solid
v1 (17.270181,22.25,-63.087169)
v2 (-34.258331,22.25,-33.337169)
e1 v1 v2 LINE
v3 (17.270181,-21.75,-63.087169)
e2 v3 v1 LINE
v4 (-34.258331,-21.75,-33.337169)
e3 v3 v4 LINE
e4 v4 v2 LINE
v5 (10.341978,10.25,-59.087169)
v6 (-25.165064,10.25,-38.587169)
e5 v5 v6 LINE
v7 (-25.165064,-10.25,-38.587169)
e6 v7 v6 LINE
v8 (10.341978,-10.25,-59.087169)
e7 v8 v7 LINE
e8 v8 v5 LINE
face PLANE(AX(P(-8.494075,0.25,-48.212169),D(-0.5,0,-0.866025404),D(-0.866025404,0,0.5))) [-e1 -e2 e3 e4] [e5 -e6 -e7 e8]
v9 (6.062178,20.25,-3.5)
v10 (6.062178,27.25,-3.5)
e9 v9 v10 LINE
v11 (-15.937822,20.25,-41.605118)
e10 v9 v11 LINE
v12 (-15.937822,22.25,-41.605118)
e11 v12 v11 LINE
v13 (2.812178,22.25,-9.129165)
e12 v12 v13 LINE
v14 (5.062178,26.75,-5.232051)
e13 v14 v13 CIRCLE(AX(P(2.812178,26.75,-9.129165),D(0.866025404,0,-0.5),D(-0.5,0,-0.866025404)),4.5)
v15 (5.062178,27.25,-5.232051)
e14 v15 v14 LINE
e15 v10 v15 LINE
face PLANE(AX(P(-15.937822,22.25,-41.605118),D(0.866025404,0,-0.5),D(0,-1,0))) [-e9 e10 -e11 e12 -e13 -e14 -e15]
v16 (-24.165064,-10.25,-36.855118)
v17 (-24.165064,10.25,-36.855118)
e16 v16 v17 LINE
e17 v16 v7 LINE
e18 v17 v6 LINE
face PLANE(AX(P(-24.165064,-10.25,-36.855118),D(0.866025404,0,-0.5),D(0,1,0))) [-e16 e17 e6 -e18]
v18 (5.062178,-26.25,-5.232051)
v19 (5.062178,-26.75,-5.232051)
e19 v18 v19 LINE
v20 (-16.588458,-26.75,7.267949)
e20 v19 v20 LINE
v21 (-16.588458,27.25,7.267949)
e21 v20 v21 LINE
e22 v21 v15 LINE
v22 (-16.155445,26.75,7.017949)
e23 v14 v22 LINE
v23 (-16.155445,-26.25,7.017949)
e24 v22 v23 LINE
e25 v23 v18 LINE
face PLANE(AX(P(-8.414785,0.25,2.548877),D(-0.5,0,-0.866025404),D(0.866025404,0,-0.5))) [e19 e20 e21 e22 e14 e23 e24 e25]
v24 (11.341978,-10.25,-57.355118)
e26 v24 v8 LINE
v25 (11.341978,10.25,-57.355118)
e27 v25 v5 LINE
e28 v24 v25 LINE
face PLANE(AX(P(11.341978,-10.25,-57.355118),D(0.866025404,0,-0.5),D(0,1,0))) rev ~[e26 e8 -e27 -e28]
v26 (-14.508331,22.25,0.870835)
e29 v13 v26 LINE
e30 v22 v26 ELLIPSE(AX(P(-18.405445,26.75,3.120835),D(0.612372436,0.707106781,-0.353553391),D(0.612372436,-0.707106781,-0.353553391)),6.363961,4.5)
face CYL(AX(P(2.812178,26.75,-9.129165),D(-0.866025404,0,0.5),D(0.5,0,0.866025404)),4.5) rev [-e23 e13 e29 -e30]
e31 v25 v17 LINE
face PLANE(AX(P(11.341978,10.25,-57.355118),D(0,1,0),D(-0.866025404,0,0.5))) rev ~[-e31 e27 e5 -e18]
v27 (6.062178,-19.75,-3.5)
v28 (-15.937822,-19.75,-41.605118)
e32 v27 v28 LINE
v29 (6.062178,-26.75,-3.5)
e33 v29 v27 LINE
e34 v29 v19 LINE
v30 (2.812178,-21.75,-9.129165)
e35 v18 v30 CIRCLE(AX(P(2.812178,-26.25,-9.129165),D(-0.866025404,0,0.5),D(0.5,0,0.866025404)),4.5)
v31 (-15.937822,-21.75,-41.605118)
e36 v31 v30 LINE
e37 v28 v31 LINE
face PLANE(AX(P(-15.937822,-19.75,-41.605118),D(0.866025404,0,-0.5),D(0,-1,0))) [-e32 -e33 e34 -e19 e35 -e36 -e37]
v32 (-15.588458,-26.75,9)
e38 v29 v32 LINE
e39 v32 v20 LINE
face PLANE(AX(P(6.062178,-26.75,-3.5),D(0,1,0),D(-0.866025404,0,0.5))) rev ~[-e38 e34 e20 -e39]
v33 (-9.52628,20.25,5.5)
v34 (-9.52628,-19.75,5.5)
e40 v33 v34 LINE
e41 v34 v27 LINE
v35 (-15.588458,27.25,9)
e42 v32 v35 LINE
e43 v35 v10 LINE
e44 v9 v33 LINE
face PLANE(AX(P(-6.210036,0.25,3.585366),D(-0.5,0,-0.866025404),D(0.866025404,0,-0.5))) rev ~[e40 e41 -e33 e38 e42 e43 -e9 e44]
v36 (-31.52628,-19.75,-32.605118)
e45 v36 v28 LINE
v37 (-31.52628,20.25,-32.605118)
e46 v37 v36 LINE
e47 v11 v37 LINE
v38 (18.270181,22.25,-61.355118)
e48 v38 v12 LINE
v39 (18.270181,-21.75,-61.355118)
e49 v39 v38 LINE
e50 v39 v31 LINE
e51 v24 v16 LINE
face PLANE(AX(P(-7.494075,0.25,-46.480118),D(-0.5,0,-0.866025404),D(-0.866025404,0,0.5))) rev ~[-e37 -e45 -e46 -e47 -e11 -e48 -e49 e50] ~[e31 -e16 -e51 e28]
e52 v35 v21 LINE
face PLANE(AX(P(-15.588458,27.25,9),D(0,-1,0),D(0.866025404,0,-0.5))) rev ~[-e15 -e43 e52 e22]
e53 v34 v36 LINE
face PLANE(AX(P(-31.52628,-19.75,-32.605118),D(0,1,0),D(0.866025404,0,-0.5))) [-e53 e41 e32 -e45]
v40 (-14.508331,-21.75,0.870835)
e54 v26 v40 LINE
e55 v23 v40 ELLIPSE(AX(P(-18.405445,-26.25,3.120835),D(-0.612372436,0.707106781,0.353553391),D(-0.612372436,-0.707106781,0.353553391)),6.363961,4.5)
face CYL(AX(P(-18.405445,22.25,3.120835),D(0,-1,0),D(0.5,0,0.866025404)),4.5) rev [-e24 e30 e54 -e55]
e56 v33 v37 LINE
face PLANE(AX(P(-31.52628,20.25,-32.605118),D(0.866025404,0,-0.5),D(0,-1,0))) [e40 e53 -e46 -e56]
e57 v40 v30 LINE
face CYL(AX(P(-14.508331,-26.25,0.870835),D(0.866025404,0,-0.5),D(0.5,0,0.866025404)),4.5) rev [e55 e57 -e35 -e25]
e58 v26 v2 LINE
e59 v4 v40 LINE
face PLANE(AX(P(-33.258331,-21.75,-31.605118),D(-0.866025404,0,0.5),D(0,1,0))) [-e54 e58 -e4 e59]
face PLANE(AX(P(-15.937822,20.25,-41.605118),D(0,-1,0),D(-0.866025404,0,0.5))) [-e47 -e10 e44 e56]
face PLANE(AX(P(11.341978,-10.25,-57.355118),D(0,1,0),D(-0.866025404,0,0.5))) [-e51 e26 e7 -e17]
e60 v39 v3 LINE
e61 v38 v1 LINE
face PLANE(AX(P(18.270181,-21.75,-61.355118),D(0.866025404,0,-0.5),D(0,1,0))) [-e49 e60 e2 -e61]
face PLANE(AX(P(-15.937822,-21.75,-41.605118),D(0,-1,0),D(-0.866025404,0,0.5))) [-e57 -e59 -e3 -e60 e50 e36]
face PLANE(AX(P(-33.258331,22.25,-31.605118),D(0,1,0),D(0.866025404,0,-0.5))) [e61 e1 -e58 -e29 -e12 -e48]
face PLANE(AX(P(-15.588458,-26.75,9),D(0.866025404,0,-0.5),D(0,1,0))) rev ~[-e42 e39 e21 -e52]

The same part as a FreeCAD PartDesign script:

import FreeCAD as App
import Part
import Sketcher
from FreeCAD import Vector
Q = App.Units.Quantity


def edges_at(feature, points):
    """Names of the edges that pass closest to the given points."""
    edges = feature.Shape.Edges
    near = lambda p: min(range(len(edges)), key=lambda i: edges[i].distToShape(Part.Vertex(*p))[0])
    return sorted({f"Edge{near(p) + 1}" for p in points})

doc = App.newDocument("Part")
body = doc.addObject("PartDesign::Body", "Body")

# Sketch on XY plane
sketch1 = body.newObject("Sketcher::SketchObject", "Sketch")
sketch1.AttachmentSupport = (doc.getObject("XY_Plane"), [""])
sketch1.MapMode = "FlatFace"
sketch1.addGeometry([
    Part.LineSegment(Vector(-28.5, 22.25, 0), Vector(-28.5, -21.75, 0)),  # 0
    Part.LineSegment(Vector(-28.5, -21.75, 0), Vector(31, -21.75, 0)),  # 1
    Part.LineSegment(Vector(31, -21.75, 0), Vector(31, 22.25, 0)),  # 2
    Part.LineSegment(Vector(31, 22.25, 0), Vector(-28.5, 22.25, 0)),  # 3
    Part.LineSegment(Vector(20.5, -10.25, 0), Vector(-20.5, -10.25, 0)),  # 4
    Part.LineSegment(Vector(-20.5, -10.25, 0), Vector(-20.5, 10.25, 0)),  # 5
    Part.LineSegment(Vector(-20.5, 10.25, 0), Vector(20.5, 10.25, 0)),  # 6
    Part.LineSegment(Vector(20.5, 10.25, 0), Vector(20.5, -10.25, 0)),  # 7
], False)
sketch1.addConstraint([
    Sketcher.Constraint("Coincident", 0, 2, 1, 1),
    Sketcher.Constraint("Coincident", 1, 2, 2, 1),
    Sketcher.Constraint("Coincident", 2, 2, 3, 1),
    Sketcher.Constraint("Coincident", 3, 2, 0, 1),
    Sketcher.Constraint("Coincident", 4, 2, 5, 1),
    Sketcher.Constraint("Coincident", 5, 2, 6, 1),
    Sketcher.Constraint("Coincident", 6, 2, 7, 1),
    Sketcher.Constraint("Coincident", 7, 2, 4, 1),
    Sketcher.Constraint("Vertical", 0),
    Sketcher.Constraint("Horizontal", 1),
    Sketcher.Constraint("Vertical", 2),
    Sketcher.Constraint("Horizontal", 3),
    Sketcher.Constraint("Horizontal", 4),
    Sketcher.Constraint("Vertical", 5),
    Sketcher.Constraint("Horizontal", 6),
    Sketcher.Constraint("Vertical", 7),
    Sketcher.Constraint("Symmetric", 4, 2, 6, 2, -1, 1),
    Sketcher.Constraint("DistanceX", 4, 2, 4, 1, Q("41 mm")),
    Sketcher.Constraint("DistanceY", 0, 2, 0, 1, Q("44 mm")),
    Sketcher.Constraint("DistanceX", 1, 1, 1, 2, Q("59.5 mm")),
    Sketcher.Constraint("DistanceY", 5, 1, 5, 2, Q("20.5 mm")),
    Sketcher.Constraint("DistanceX", -1, 1, 1, 2, Q("31 mm")),
    Sketcher.Constraint("DistanceY", 5, 2, 3, 2, Q("12 mm")),
])
pad1 = body.newObject("PartDesign::Pad", "Pad")
pad1.Profile = sketch1
pad1.Length = 2

# Sketch on XY plane
sketch2 = body.newObject("Sketcher::SketchObject", "Sketch001")
sketch2.AttachmentSupport = (doc.getObject("XY_Plane"), [""])
sketch2.MapMode = "FlatFace"
sketch2.addGeometry([
    Part.LineSegment(Vector(31, 22.25, 0), Vector(31, -21.75, 0)),  # 0
    Part.LineSegment(Vector(31, -21.75, 0), Vector(11, -21.75, 0)),  # 1
    Part.LineSegment(Vector(11, -21.75, 0), Vector(11, -19.75, 0)),  # 2
    Part.LineSegment(Vector(11, -19.75, 0), Vector(29, -19.75, 0)),  # 3
    Part.LineSegment(Vector(29, -19.75, 0), Vector(29, 20.25, 0)),  # 4
    Part.LineSegment(Vector(29, 20.25, 0), Vector(11, 20.25, 0)),  # 5
    Part.LineSegment(Vector(11, 20.25, 0), Vector(11, 22.25, 0)),  # 6
    Part.LineSegment(Vector(11, 22.25, 0), Vector(31, 22.25, 0)),  # 7
], False)
sketch2.addConstraint([
    Sketcher.Constraint("Coincident", 0, 2, 1, 1),
    Sketcher.Constraint("Coincident", 1, 2, 2, 1),
    Sketcher.Constraint("Coincident", 2, 2, 3, 1),
    Sketcher.Constraint("Coincident", 3, 2, 4, 1),
    Sketcher.Constraint("Coincident", 4, 2, 5, 1),
    Sketcher.Constraint("Coincident", 5, 2, 6, 1),
    Sketcher.Constraint("Coincident", 6, 2, 7, 1),
    Sketcher.Constraint("Coincident", 7, 2, 0, 1),
    Sketcher.Constraint("Vertical", 0),
    Sketcher.Constraint("Horizontal", 1),
    Sketcher.Constraint("Vertical", 2),
    Sketcher.Constraint("Horizontal", 3),
    Sketcher.Constraint("Vertical", 4),
    Sketcher.Constraint("Horizontal", 5),
    Sketcher.Constraint("Vertical", 6),
    Sketcher.Constraint("Horizontal", 7),
    Sketcher.Constraint("Vertical", 2, 2, 5, 2),
    Sketcher.Constraint("Equal", 2, 6),
    Sketcher.Constraint("DistanceX", 1, 2, 1, 1, Q("20 mm")),
    Sketcher.Constraint("DistanceX", 3, 1, 3, 2, Q("18 mm")),
    Sketcher.Constraint("DistanceY", 0, 2, 0, 1, Q("44 mm")),
    Sketcher.Constraint("DistanceY", 2, 1, 2, 2, Q("2 mm")),
    Sketcher.Constraint("DistanceX", -1, 1, 0, 2, Q("31 mm")),
    Sketcher.Constraint("DistanceY", 0, 2, -1, 1, Q("21.75 mm")),
])
pad2 = body.newObject("PartDesign::Pad", "Pad001")
pad2.Profile = sketch2
pad2.Length = 44
pad2.Reversed = True

# Sketch on XY plane
sketch3 = body.newObject("Sketcher::SketchObject", "Sketch002")
sketch3.AttachmentSupport = (doc.getObject("XY_Plane"), [""])
sketch3.MapMode = "FlatFace"
sketch3.AttachmentOffset = App.Placement(Vector(0, 0, -44), App.Rotation())
sketch3.addGeometry([
    Part.LineSegment(Vector(11, -26.75, 0), Vector(11, -19.75, 0)),  # 0
    Part.LineSegment(Vector(11, -19.75, 0), Vector(29, -19.75, 0)),  # 1
    Part.LineSegment(Vector(29, -19.75, 0), Vector(29, 20.25, 0)),  # 2
    Part.LineSegment(Vector(29, 20.25, 0), Vector(11, 20.25, 0)),  # 3
    Part.LineSegment(Vector(11, 20.25, 0), Vector(11, 27.25, 0)),  # 4
    Part.LineSegment(Vector(11, 27.25, 0), Vector(36, 27.25, 0)),  # 5
    Part.LineSegment(Vector(36, 27.25, 0), Vector(36, -26.75, 0)),  # 6
    Part.LineSegment(Vector(36, -26.75, 0), Vector(11, -26.75, 0)),  # 7
], False)
sketch3.addConstraint([
    Sketcher.Constraint("Coincident", 0, 2, 1, 1),
    Sketcher.Constraint("Coincident", 1, 2, 2, 1),
    Sketcher.Constraint("Coincident", 2, 2, 3, 1),
    Sketcher.Constraint("Coincident", 3, 2, 4, 1),
    Sketcher.Constraint("Coincident", 4, 2, 5, 1),
    Sketcher.Constraint("Coincident", 5, 2, 6, 1),
    Sketcher.Constraint("Coincident", 6, 2, 7, 1),
    Sketcher.Constraint("Coincident", 7, 2, 0, 1),
    Sketcher.Constraint("Vertical", 0),
    Sketcher.Constraint("Horizontal", 1),
    Sketcher.Constraint("Vertical", 2),
    Sketcher.Constraint("Horizontal", 3),
    Sketcher.Constraint("Vertical", 4),
    Sketcher.Constraint("Horizontal", 5),
    Sketcher.Constraint("Vertical", 6),
    Sketcher.Constraint("Horizontal", 7),
    Sketcher.Constraint("Vertical", 0, 2, 3, 2),
    Sketcher.Constraint("Equal", 0, 4),
    Sketcher.Constraint("DistanceX", 1, 1, 1, 2, Q("18 mm")),
    Sketcher.Constraint("DistanceX", 5, 1, 5, 2, Q("25 mm")),
    Sketcher.Constraint("DistanceY", 0, 1, 0, 2, Q("7 mm")),
    Sketcher.Constraint("DistanceY", 2, 1, 2, 2, Q("40 mm")),
    Sketcher.Constraint("DistanceX", -1, 1, 0, 2, Q("11 mm")),
    Sketcher.Constraint("DistanceY", 0, 2, -1, 1, Q("19.75 mm")),
])
pad3 = body.newObject("PartDesign::Pad", "Pad002")
pad3.Profile = sketch3
pad3.Length = 2
doc.recompute()

fillet = body.newObject("PartDesign::Fillet", "Fillet")
fillet.Base = (pad3, edges_at(pad3, [(31, 0.25, -42), (21, 22.25, -42), (21, -21.75, -42)]))
fillet.Radius = 4.5
body2 = doc.addObject("PartDesign::Body", "Body001")
doc.recompute()

body.Placement = App.Placement(Vector(-6.411543, 0, -47.105118), App.Rotation(Vector(0, 1, 0), 210))
boolean = body2.newObject("PartDesign::Boolean", "Boolean")
boolean.Type = "Fuse"
boolean.addObjects([body])

doc.recompute()
